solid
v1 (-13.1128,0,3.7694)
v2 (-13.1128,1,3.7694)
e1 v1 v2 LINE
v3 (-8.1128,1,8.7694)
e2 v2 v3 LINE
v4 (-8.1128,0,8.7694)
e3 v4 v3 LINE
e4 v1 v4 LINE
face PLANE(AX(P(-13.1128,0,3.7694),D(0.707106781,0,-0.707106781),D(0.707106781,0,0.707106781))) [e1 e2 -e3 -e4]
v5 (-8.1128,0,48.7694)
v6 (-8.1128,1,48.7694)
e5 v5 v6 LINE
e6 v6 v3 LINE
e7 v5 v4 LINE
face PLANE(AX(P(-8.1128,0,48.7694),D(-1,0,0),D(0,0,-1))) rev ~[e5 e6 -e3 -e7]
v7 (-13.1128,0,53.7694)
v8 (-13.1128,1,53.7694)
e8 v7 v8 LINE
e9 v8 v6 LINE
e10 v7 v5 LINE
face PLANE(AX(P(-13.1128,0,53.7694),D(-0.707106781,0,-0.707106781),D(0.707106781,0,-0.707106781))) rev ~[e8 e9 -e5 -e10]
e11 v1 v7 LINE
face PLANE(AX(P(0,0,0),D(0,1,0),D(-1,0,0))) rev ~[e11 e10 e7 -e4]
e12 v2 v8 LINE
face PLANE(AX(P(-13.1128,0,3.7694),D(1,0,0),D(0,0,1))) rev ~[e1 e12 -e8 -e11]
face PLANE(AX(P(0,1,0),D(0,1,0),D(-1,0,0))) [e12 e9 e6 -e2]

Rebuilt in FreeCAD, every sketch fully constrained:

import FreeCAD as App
import Part
import Sketcher

V = App.Vector

doc = App.newDocument("Part")
body = doc.addObject("PartDesign::Body", "Body")

sketch1 = body.newObject("Sketcher::SketchObject", "Sketch")
sketch1.AttachmentSupport = (doc.getObject("XZ_Plane"), [""])
sketch1.MapMode = "FlatFace"
sketch1.addGeometry([
    Part.LineSegment(V(-13, 4, 0), V(-13, 54, 0)),
    Part.LineSegment(V(-13, 54, 0), V(-8, 49, 0)),
    Part.LineSegment(V(-8, 49, 0), V(-8, 9, 0)),
    Part.LineSegment(V(-8, 9, 0), V(-13, 4, 0)),
], False)
sketch1.addConstraint([
    Sketcher.Constraint("Coincident", 0, 2, 1, 1),
    Sketcher.Constraint("Coincident", 1, 2, 2, 1),
    Sketcher.Constraint("Coincident", 2, 2, 3, 1),
    Sketcher.Constraint("Coincident", 3, 2, 0, 1),
    Sketcher.Constraint("Vertical", 0),
    Sketcher.Constraint("Vertical", 2),
    Sketcher.Constraint("Perpendicular", 1, 3),
    Sketcher.Constraint("Equal", 1, 3),
    Sketcher.Constraint("DistanceY", 2, 2, 2, 1, 40.0),
    Sketcher.Constraint("DistanceX", 0, 2, 1, 2, 5.0),
    Sketcher.Constraint("DistanceX", 0, 2, -1, 1, 13.1128),
    Sketcher.Constraint("DistanceY", -1, 1, 0, 2, 53.7694),
])
pad1 = body.newObject("PartDesign::Pad", "Pad")
pad1.Profile = sketch1
pad1.Length = 1
pad1.Reversed = True

doc.recompute()
